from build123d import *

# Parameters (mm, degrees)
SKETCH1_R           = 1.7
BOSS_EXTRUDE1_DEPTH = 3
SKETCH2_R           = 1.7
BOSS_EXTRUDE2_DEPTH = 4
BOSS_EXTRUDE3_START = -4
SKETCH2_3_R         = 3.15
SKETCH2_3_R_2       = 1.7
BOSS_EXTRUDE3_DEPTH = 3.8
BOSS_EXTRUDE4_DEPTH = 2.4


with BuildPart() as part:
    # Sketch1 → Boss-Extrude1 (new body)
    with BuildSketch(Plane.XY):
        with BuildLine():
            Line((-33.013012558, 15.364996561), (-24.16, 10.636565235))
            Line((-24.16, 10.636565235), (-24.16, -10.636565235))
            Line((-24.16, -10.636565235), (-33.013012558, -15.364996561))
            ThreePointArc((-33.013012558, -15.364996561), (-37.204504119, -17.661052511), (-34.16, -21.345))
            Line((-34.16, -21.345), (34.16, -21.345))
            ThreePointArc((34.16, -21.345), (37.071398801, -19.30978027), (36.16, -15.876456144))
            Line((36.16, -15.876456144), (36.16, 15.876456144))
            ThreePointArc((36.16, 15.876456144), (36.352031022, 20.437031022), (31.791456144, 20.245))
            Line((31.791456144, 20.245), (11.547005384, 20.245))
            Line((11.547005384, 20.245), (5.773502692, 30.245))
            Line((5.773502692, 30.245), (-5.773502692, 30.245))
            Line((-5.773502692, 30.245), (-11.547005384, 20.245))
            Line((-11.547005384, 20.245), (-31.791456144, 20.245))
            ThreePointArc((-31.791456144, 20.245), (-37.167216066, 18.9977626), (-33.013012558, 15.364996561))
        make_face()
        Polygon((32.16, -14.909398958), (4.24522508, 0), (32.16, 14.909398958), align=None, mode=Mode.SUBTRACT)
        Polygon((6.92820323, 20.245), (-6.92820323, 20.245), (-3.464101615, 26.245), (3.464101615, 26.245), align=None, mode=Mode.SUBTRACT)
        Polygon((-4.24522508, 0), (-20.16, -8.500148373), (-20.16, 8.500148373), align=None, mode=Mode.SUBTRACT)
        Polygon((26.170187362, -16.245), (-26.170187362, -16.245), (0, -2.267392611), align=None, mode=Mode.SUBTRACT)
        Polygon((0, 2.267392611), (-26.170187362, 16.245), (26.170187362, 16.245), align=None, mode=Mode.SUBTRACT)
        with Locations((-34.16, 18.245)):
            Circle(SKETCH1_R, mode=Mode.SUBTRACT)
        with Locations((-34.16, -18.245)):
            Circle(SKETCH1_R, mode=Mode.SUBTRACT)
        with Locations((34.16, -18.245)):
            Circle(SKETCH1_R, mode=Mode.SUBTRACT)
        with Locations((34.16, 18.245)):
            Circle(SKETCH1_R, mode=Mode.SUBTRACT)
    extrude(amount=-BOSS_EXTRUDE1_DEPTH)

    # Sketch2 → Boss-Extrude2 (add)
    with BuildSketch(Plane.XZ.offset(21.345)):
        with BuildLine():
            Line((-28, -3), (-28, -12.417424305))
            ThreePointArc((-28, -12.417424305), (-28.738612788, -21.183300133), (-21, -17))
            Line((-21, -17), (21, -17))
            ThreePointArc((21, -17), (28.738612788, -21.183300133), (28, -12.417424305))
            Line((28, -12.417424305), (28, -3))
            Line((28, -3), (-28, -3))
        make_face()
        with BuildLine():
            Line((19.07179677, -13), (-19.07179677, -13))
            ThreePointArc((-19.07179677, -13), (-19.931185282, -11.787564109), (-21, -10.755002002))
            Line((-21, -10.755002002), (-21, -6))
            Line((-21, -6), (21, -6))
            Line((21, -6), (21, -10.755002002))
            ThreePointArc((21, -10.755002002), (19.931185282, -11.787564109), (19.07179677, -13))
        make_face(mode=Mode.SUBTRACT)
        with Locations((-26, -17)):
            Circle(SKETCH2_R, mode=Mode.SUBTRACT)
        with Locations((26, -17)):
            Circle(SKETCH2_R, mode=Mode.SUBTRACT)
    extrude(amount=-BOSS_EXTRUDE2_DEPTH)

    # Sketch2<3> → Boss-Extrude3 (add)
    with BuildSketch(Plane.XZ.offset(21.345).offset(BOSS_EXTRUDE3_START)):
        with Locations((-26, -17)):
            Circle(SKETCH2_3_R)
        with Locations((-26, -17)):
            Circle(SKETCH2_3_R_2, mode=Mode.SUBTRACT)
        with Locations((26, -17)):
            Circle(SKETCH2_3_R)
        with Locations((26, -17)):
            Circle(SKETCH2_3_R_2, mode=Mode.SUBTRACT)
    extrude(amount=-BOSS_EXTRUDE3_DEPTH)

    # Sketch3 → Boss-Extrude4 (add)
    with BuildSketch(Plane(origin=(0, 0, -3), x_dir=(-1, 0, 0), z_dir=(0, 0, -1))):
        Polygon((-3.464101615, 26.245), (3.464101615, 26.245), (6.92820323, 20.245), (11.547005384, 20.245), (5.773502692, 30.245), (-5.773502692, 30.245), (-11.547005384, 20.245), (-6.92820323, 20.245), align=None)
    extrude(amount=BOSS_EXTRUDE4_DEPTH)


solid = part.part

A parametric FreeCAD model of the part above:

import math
import FreeCAD as App
import Part
import Sketcher
from FreeCAD import Vector
Q = App.Units.Quantity

doc = App.newDocument("Part")
body = doc.addObject("PartDesign::Body", "Body")

# Sketch on XY plane
sketch1 = doc.addObject("Sketcher::SketchObject", "Sketch")
body.addObject(sketch1)
sketch1.AttachmentSupport = (doc.XY_Plane, [""])
sketch1.MapMode = "FlatFace"
sketch1.addGeometry(Part.LineSegment(Vector(-33, 15.4, 0), Vector(-24.2, 10.6, 0)), False)
sketch1.addGeometry(Part.LineSegment(Vector(-24.2, 10.6, 0), Vector(-24.2, -10.6, 0)), False)
sketch1.addGeometry(Part.LineSegment(Vector(-24.2, -10.6, 0), Vector(-33, -15.4, 0)), False)
sketch1.addGeometry(Part.ArcOfCircle(Part.Circle(Vector(-34.2, -18.2, 0), Vector(0, 0, 1), 3.1), math.radians(68), math.radians(270)), False)
sketch1.addGeometry(Part.LineSegment(Vector(-34.2, -21.3, 0), Vector(34.2, -21.3, 0)), False)
sketch1.addGeometry(Part.ArcOfCircle(Part.Circle(Vector(34.2, -18.2, 0), Vector(0, 0, 1), 3.1), math.radians(-90), math.radians(50)), False)
sketch1.addGeometry(Part.LineSegment(Vector(36.2, -15.9, 0), Vector(36.2, 15.9, 0)), False)
sketch1.addGeometry(Part.ArcOfCircle(Part.Circle(Vector(34.2, 18.2, 0), Vector(0, 0, 1), 3.1), math.radians(-50), math.radians(140)), False)
sketch1.addGeometry(Part.LineSegment(Vector(31.8, 20.2, 0), Vector(11.5, 20.2, 0)), False)
sketch1.addGeometry(Part.LineSegment(Vector(11.5, 20.2, 0), Vector(5.8, 30.2, 0)), False)
sketch1.addGeometry(Part.LineSegment(Vector(5.8, 30.2, 0), Vector(-5.8, 30.2, 0)), False)
sketch1.addGeometry(Part.LineSegment(Vector(-5.8, 30.2, 0), Vector(-11.5, 20.2, 0)), False)
sketch1.addGeometry(Part.LineSegment(Vector(-11.5, 20.2, 0), Vector(-31.8, 20.2, 0)), False)
sketch1.addGeometry(Part.ArcOfCircle(Part.Circle(Vector(-34.2, 18.2, 0), Vector(0, 0, 1), 3.1), math.radians(40), math.radians(292)), False)
sketch1.addGeometry(Part.Circle(Vector(-34.2, -18.2, 0), Vector(0, 0, 1), 1.7), False)
sketch1.addGeometry(Part.LineSegment(Vector(-20.2, 8.5, 0), Vector(-4.2, 0, 0)), False)
sketch1.addGeometry(Part.LineSegment(Vector(-4.2, 0, 0), Vector(-20.2, -8.5, 0)), False)
sketch1.addGeometry(Part.LineSegment(Vector(-20.2, -8.5, 0), Vector(-20.2, 8.5, 0)), False)
sketch1.addGeometry(Part.LineSegment(Vector(0, -2.3, 0), Vector(26.2, -16.2, 0)), False)
sketch1.addGeometry(Part.LineSegment(Vector(26.2, -16.2, 0), Vector(-26.2, -16.2, 0)), False)
sketch1.addGeometry(Part.LineSegment(Vector(-26.2, -16.2, 0), Vector(0, -2.3, 0)), False)
sketch1.addGeometry(Part.Circle(Vector(34.2, -18.2, 0), Vector(0, 0, 1), 1.7), False)
sketch1.addGeometry(Part.LineSegment(Vector(32.2, 14.9, 0), Vector(32.2, -14.9, 0)), False)
sketch1.addGeometry(Part.LineSegment(Vector(32.2, -14.9, 0), Vector(4.2, 0, 0)), False)
sketch1.addGeometry(Part.LineSegment(Vector(4.2, 0, 0), Vector(32.2, 14.9, 0)), False)
sketch1.addGeometry(Part.Circle(Vector(-34.2, 18.2, 0), Vector(0, 0, 1), 1.7), False)
sketch1.addGeometry(Part.LineSegment(Vector(26.2, 16.2, 0), Vector(0, 2.3, 0)), False)
sketch1.addGeometry(Part.LineSegment(Vector(0, 2.3, 0), Vector(-26.2, 16.2, 0)), False)
sketch1.addGeometry(Part.LineSegment(Vector(-26.2, 16.2, 0), Vector(26.2, 16.2, 0)), False)
sketch1.addGeometry(Part.LineSegment(Vector(3.5, 26.2, 0), Vector(6.9, 20.2, 0)), False)
sketch1.addGeometry(Part.LineSegment(Vector(6.9, 20.2, 0), Vector(-6.9, 20.2, 0)), False)
sketch1.addGeometry(Part.LineSegment(Vector(-6.9, 20.2, 0), Vector(-3.5, 26.2, 0)), False)
sketch1.addGeometry(Part.LineSegment(Vector(-3.5, 26.2, 0), Vector(3.5, 26.2, 0)), False)
sketch1.addGeometry(Part.Circle(Vector(34.2, 18.2, 0), Vector(0, 0, 1), 1.7), False)
sketch1.addConstraint(Sketcher.Constraint("Coincident", 0, 2, 1, 1))
sketch1.addConstraint(Sketcher.Constraint("Coincident", 1, 2, 2, 1))
sketch1.addConstraint(Sketcher.Constraint("Coincident", 2, 2, 3, 1))
sketch1.addConstraint(Sketcher.Constraint("Tangent", 3, 2, 4, 1))
sketch1.addConstraint(Sketcher.Constraint("Tangent", 4, 2, 5, 1))
sketch1.addConstraint(Sketcher.Constraint("Coincident", 5, 2, 6, 1))
sketch1.addConstraint(Sketcher.Constraint("Coincident", 6, 2, 7, 1))
sketch1.addConstraint(Sketcher.Constraint("Coincident", 7, 2, 8, 1))
sketch1.addConstraint(Sketcher.Constraint("Coincident", 8, 2, 9, 1))
sketch1.addConstraint(Sketcher.Constraint("Coincident", 9, 2, 10, 1))
sketch1.addConstraint(Sketcher.Constraint("Coincident", 10, 2, 11, 1))
sketch1.addConstraint(Sketcher.Constraint("Coincident", 11, 2, 12, 1))
sketch1.addConstraint(Sketcher.Constraint("Coincident", 12, 2, 13, 1))
sketch1.addConstraint(Sketcher.Constraint("Coincident", 13, 2, 0, 1))
sketch1.addConstraint(Sketcher.Constraint("Coincident", 15, 2, 16, 1))
sketch1.addConstraint(Sketcher.Constraint("Coincident", 16, 2, 17, 1))
sketch1.addConstraint(Sketcher.Constraint("Coincident", 17, 2, 15, 1))
sketch1.addConstraint(Sketcher.Constraint("Coincident", 18, 2, 19, 1))
sketch1.addConstraint(Sketcher.Constraint("Coincident", 19, 2, 20, 1))
sketch1.addConstraint(Sketcher.Constraint("Coincident", 20, 2, 18, 1))
sketch1.addConstraint(Sketcher.Constraint("Coincident", 22, 2, 23, 1))
sketch1.addConstraint(Sketcher.Constraint("Coincident", 23, 2, 24, 1))
sketch1.addConstraint(Sketcher.Constraint("Coincident", 24, 2, 22, 1))
sketch1.addConstraint(Sketcher.Constraint("Coincident", 26, 2, 27, 1))
sketch1.addConstraint(Sketcher.Constraint("Coincident", 27, 2, 28, 1))
sketch1.addConstraint(Sketcher.Constraint("Coincident", 28, 2, 26, 1))
sketch1.addConstraint(Sketcher.Constraint("Coincident", 29, 2, 30, 1))
sketch1.addConstraint(Sketcher.Constraint("Coincident", 30, 2, 31, 1))
sketch1.addConstraint(Sketcher.Constraint("Coincident", 31, 2, 32, 1))
sketch1.addConstraint(Sketcher.Constraint("Coincident", 32, 2, 29, 1))
sketch1.addConstraint(Sketcher.Constraint("Vertical", 1))
sketch1.addConstraint(Sketcher.Constraint("Horizontal", 4))
sketch1.addConstraint(Sketcher.Constraint("Vertical", 6))
sketch1.addConstraint(Sketcher.Constraint("Horizontal", 8))
sketch1.addConstraint(Sketcher.Constraint("Horizontal", 10))
sketch1.addConstraint(Sketcher.Constraint("Horizontal", 12))
sketch1.addConstraint(Sketcher.Constraint("Vertical", 17))
sketch1.addConstraint(Sketcher.Constraint("Horizontal", 19))
sketch1.addConstraint(Sketcher.Constraint("Vertical", 22))
sketch1.addConstraint(Sketcher.Constraint("Horizontal", 28))
sketch1.addConstraint(Sketcher.Constraint("Horizontal", 30))
sketch1.addConstraint(Sketcher.Constraint("Horizontal", 32))
sketch1.addConstraint(Sketcher.Constraint("Coincident", 14, 3, 3, 3))
sketch1.addConstraint(Sketcher.Constraint("Coincident", 21, 3, 5, 3))
sketch1.addConstraint(Sketcher.Constraint("Coincident", 25, 3, 13, 3))
sketch1.addConstraint(Sketcher.Constraint("Coincident", 33, 3, 7, 3))
sketch1.addConstraint(Sketcher.Constraint("Equal", 3, 5))
sketch1.addConstraint(Sketcher.Constraint("Equal", 5, 7))
sketch1.addConstraint(Sketcher.Constraint("Equal", 7, 13))
sketch1.addConstraint(Sketcher.Constraint("Equal", 14, 21))
sketch1.addConstraint(Sketcher.Constraint("Equal", 21, 25))
sketch1.addConstraint(Sketcher.Constraint("Equal", 25, 33))
sketch1.addConstraint(Sketcher.Constraint("Symmetric", 3, 3, 7, 3, -1, 1))
sketch1.addConstraint(Sketcher.Constraint("Symmetric", 5, 3, 13, 3, -1, 1))
sketch1.addConstraint(Sketcher.Constraint("Symmetric", 15, 2, 23, 2, -1, 1))
sketch1.addConstraint(Sketcher.Constraint("Symmetric", 20, 2, 26, 2, -1, 1))
sketch1.addConstraint(Sketcher.Constraint("Symmetric", 18, 2, 27, 2, -1, 1))
sketch1.addConstraint(Sketcher.Constraint("Symmetric", 8, 2, 11, 2, -2))
sketch1.addConstraint(Sketcher.Constraint("Symmetric", 2, 2, 13, 2, -1))
sketch1.addConstraint(Sketcher.Constraint("PointOnObject", 15, 2, -1))
sketch1.addConstraint(Sketcher.Constraint("PointOnObject", 20, 2, -2))
sketch1.addConstraint(Sketcher.Constraint("Parallel", 0, 15))
sketch1.addConstraint(Sketcher.Constraint("Parallel", 2, 16))
sketch1.addConstraint(Sketcher.Constraint("Parallel", 15, 18))
sketch1.addConstraint(Sketcher.Constraint("Parallel", 16, 20))
sketch1.addConstraint(Sketcher.Constraint("Parallel", 18, 23))
sketch1.addConstraint(Sketcher.Constraint("Parallel", 20, 24))
sketch1.addConstraint(Sketcher.Constraint("Parallel", 24, 26))
sketch1.addConstraint(Sketcher.Constraint("Parallel", 9, 29))
sketch1.addConstraint(Sketcher.Constraint("Parallel", 11, 31))
sketch1.addConstraint(Sketcher.Constraint("Horizontal", 12, 2, 29, 2))
sketch1.addConstraint(Sketcher.Constraint("Vertical", 19, 2, 27, 2))
sketch1.addConstraint(Sketcher.Constraint("Equal", 9, 11))
sketch1.addConstraint(Sketcher.Constraint("Diameter", 14, 3.4))
sketch1.addConstraint(Sketcher.Constraint("Radius", 3, 3.1))
sketch1.addConstraint(Sketcher.Constraint("Angle", 9, Q("120 deg")))
sketch1.addConstraint(Sketcher.Constraint("DistanceX", 13, 3, 0, 2, 10.0))
sketch1.addConstraint(Sketcher.Constraint("DistanceX", 5, 3, 5, 2, 2.0))
sketch1.addConstraint(Sketcher.Constraint("DistanceY", 33, 3, 7, 2, 2.0))
sketch1.addConstraint(Sketcher.Constraint("DistanceY", 8, 2, 9, 2, 10.0))
sketch1.addConstraint(Sketcher.Constraint("DistanceX", 1, 2, 16, 2, 4.0))
sketch1.addConstraint(Sketcher.Constraint("DistanceY", 21, 3, 18, 2, 2.0))
sketch1.addConstraint(Sketcher.Constraint("DistanceX", 22, 2, 21, 3, 2.0))
sketch1.addConstraint(Sketcher.Constraint("DistanceY", 31, 2, 10, 2, 4.0))
sketch1.addConstraint(Sketcher.Constraint("DistanceX", 4, 1, 4, 2, 68.32))
sketch1.addConstraint(Sketcher.Constraint("DistanceY", 5, 3, 7, 3, 36.49))
sketch1.addConstraint(Sketcher.Constraint("DistanceX", 8, 2, 8, 1, 20.244451))
sketch1.addConstraint(Sketcher.Constraint("DistanceY", 1, 2, 1, 1, 21.27313))
sketch1.addConstraint(Sketcher.Constraint("DistanceY", 22, 2, -1, 1, 14.909399))
sketch1.addConstraint(Sketcher.Constraint("DistanceX", 31, 2, -1, 1, 3.464102))
sketch1.addConstraint(Sketcher.Constraint("DistanceX", -1, 1, 32, 2, 3.464102))
sketch1.addConstraint(Sketcher.Constraint("Distance", 15, 18.042522))
sketch1.addConstraint(Sketcher.Constraint("DistanceX", 19, 2, 19, 1, 52.340375))
pad1 = doc.addObject("PartDesign::Pad", "Pad")
body.addObject(pad1)
pad1.Profile = sketch1
pad1.Length = 3
pad1.Reversed = True

# Sketch on XZ plane
sketch2 = doc.addObject("Sketcher::SketchObject", "Sketch001")
body.addObject(sketch2)
sketch2.AttachmentSupport = (doc.XZ_Plane, [""])
sketch2.MapMode = "FlatFace"
sketch2.AttachmentOffset = App.Placement(Vector(0, 0, 21.345), App.Rotation())
sketch2.addGeometry(Part.LineSegment(Vector(-28, -3, 0), Vector(-28, -12.4, 0)), False)
sketch2.addGeometry(Part.ArcOfCircle(Part.Circle(Vector(-26, -17, 0), Vector(0, 0, 1), 5), math.radians(114), math.radians(360)), False)
sketch2.addGeometry(Part.LineSegment(Vector(-21, -17, 0), Vector(21, -17, 0)), False)
sketch2.addGeometry(Part.ArcOfCircle(Part.Circle(Vector(26, -17, 0), Vector(0, 0, 1), 5), math.radians(180), math.radians(426)), False)
sketch2.addGeometry(Part.LineSegment(Vector(28, -12.4, 0), Vector(28, -3, 0)), False)
sketch2.addGeometry(Part.LineSegment(Vector(28, -3, 0), Vector(-28, -3, 0)), False)
sketch2.addGeometry(Part.Circle(Vector(-26, -17, 0), Vector(0, 0, 1), 1.7), False)
sketch2.addGeometry(Part.Circle(Vector(26, -17, 0), Vector(0, 0, 1), 1.7), False)
sketch2.addGeometry(Part.ArcOfCircle(Part.Circle(Vector(26, -17, 0), Vector(0, 0, 1), 8), math.radians(129), math.radians(150)), False)
sketch2.addGeometry(Part.LineSegment(Vector(19.1, -13, 0), Vector(-19.1, -13, 0)), False)
sketch2.addGeometry(Part.ArcOfCircle(Part.Circle(Vector(-26, -17, 0), Vector(0, 0, 1), 8), math.radians(30), math.radians(51)), False)
sketch2.addGeometry(Part.LineSegment(Vector(-21, -10.8, 0), Vector(-21, -6, 0)), False)
sketch2.addGeometry(Part.LineSegment(Vector(-21, -6, 0), Vector(21, -6, 0)), False)
sketch2.addGeometry(Part.LineSegment(Vector(21, -6, 0), Vector(21, -10.8, 0)), False)
sketch2.addConstraint(Sketcher.Constraint("Coincident", 0, 2, 1, 1))
sketch2.addConstraint(Sketcher.Constraint("Coincident", 1, 2, 2, 1))
sketch2.addConstraint(Sketcher.Constraint("Coincident", 2, 2, 3, 1))
sketch2.addConstraint(Sketcher.Constraint("Coincident", 3, 2, 4, 1))
sketch2.addConstraint(Sketcher.Constraint("Coincident", 4, 2, 5, 1))
sketch2.addConstraint(Sketcher.Constraint("Coincident", 5, 2, 0, 1))
sketch2.addConstraint(Sketcher.Constraint("Coincident", 8, 2, 9, 1))
sketch2.addConstraint(Sketcher.Constraint("Coincident", 9, 2, 10, 1))
sketch2.addConstraint(Sketcher.Constraint("Coincident", 10, 2, 11, 1))
sketch2.addConstraint(Sketcher.Constraint("Coincident", 11, 2, 12, 1))
sketch2.addConstraint(Sketcher.Constraint("Coincident", 12, 2, 13, 1))
sketch2.addConstraint(Sketcher.Constraint("Coincident", 13, 2, 8, 1))
sketch2.addConstraint(Sketcher.Constraint("Vertical", 0))
sketch2.addConstraint(Sketcher.Constraint("Horizontal", 2))
sketch2.addConstraint(Sketcher.Constraint("Vertical", 4))
sketch2.addConstraint(Sketcher.Constraint("Horizontal", 5))
sketch2.addConstraint(Sketcher.Constraint("Horizontal", 9))
sketch2.addConstraint(Sketcher.Constraint("Vertical", 11))
sketch2.addConstraint(Sketcher.Constraint("Horizontal", 12))
sketch2.addConstraint(Sketcher.Constraint("Vertical", 13))
sketch2.addConstraint(Sketcher.Constraint("Coincident", 6, 3, 1, 3))
sketch2.addConstraint(Sketcher.Constraint("Coincident", 7, 3, 3, 3))
sketch2.addConstraint(Sketcher.Constraint("Coincident", 8, 3, 3, 3))
sketch2.addConstraint(Sketcher.Constraint("Coincident", 10, 3, 1, 3))
sketch2.addConstraint(Sketcher.Constraint("Equal", 1, 3))
sketch2.addConstraint(Sketcher.Constraint("Equal", 6, 7))
sketch2.addConstraint(Sketcher.Constraint("Equal", 8, 10))
sketch2.addConstraint(Sketcher.Constraint("Symmetric", 1, 3, 3, 3, -2))
sketch2.addConstraint(Sketcher.Constraint("Horizontal", 10, 3, 1, 2))
sketch2.addConstraint(Sketcher.Constraint("Horizontal", 0, 2, 3, 2))
sketch2.addConstraint(Sketcher.Constraint("Horizontal", 10, 2, 13, 2))
sketch2.addConstraint(Sketcher.Constraint("Vertical", 1, 2, 10, 2))
sketch2.addConstraint(Sketcher.Constraint("Radius", 1, 5.0))
sketch2.addConstraint(Sketcher.Constraint("Radius", 8, 8.0))
sketch2.addConstraint(Sketcher.Constraint("Diameter", 6, 3.4))
sketch2.addConstraint(Sketcher.Constraint("DistanceX", 2, 1, 2, 2, 42.0))
sketch2.addConstraint(Sketcher.Constraint("DistanceX", 5, 2, 5, 1, 56.0))
sketch2.addConstraint(Sketcher.Constraint("DistanceY", 1, 3, -1, 1, 17.0))
sketch2.addConstraint(Sketcher.Constraint("DistanceY", 4, 2, -1, 1, 3.0))
sketch2.addConstraint(Sketcher.Constraint("DistanceY", 8, 2, -1, 1, 13.0))
sketch2.addConstraint(Sketcher.Constraint("DistanceY", 11, 2, -1, 1, 6.0))
pad2 = doc.addObject("PartDesign::Pad", "Pad001")
body.addObject(pad2)
pad2.Profile = sketch2
pad2.Length = 4
pad2.Reversed = True

# Sketch on XZ plane
sketch3 = doc.addObject("Sketcher::SketchObject", "Sketch002")
body.addObject(sketch3)
sketch3.AttachmentSupport = (doc.XZ_Plane, [""])
sketch3.MapMode = "FlatFace"
sketch3.AttachmentOffset = App.Placement(Vector(0, 0, 17.345), App.Rotation())
sketch3.addGeometry(Part.Circle(Vector(-26, -17, 0), Vector(0, 0, 1), 3.1), False)
sketch3.addGeometry(Part.Circle(Vector(-26, -17, 0), Vector(0, 0, 1), 1.7), False)
sketch3.addGeometry(Part.Circle(Vector(26, -17, 0), Vector(0, 0, 1), 3.1), False)
sketch3.addGeometry(Part.Circle(Vector(26, -17, 0), Vector(0, 0, 1), 1.7), False)
sketch3.addConstraint(Sketcher.Constraint("Coincident", 1, 3, 0, 3))
sketch3.addConstraint(Sketcher.Constraint("Coincident", 3, 3, 2, 3))
sketch3.addConstraint(Sketcher.Constraint("Equal", 0, 2))
sketch3.addConstraint(Sketcher.Constraint("Equal", 1, 3))
sketch3.addConstraint(Sketcher.Constraint("Symmetric", 0, 3, 2, 3, -2))
sketch3.addConstraint(Sketcher.Constraint("Diameter", 0, 6.3))
sketch3.addConstraint(Sketcher.Constraint("Diameter", 1, 3.4))
sketch3.addConstraint(Sketcher.Constraint("DistanceX", 0, 3, -1, 1, 26.0))
sketch3.addConstraint(Sketcher.Constraint("DistanceY", 0, 3, -1, 1, 17.0))
pad3 = doc.addObject("PartDesign::Pad", "Pad002")
body.addObject(pad3)
pad3.Profile = sketch3
pad3.Length = 3.8
pad3.Reversed = True

# Sketch on XY plane
sketch4 = doc.addObject("Sketcher::SketchObject", "Sketch003")
body.addObject(sketch4)
sketch4.AttachmentSupport = (doc.XY_Plane, [""])
sketch4.MapMode = "FlatFace"
sketch4.AttachmentOffset = App.Placement(Vector(0, 0, -3), App.Rotation())
sketch4.addGeometry(Part.LineSegment(Vector(3.5, 26.2, 0), Vector(-3.5, 26.2, 0)), False)
sketch4.addGeometry(Part.LineSegment(Vector(-3.5, 26.2, 0), Vector(-6.9, 20.2, 0)), False)
sketch4.addGeometry(Part.LineSegment(Vector(-6.9, 20.2, 0), Vector(-11.5, 20.2, 0)), False)
sketch4.addGeometry(Part.LineSegment(Vector(-11.5, 20.2, 0), Vector(-5.8, 30.2, 0)), False)
sketch4.addGeometry(Part.LineSegment(Vector(-5.8, 30.2, 0), Vector(5.8, 30.2, 0)), False)
sketch4.addGeometry(Part.LineSegment(Vector(5.8, 30.2, 0), Vector(11.5, 20.2, 0)), False)
sketch4.addGeometry(Part.LineSegment(Vector(11.5, 20.2, 0), Vector(6.9, 20.2, 0)), False)
sketch4.addGeometry(Part.LineSegment(Vector(6.9, 20.2, 0), Vector(3.5, 26.2, 0)), False)
sketch4.addConstraint(Sketcher.Constraint("Coincident", 0, 2, 1, 1))
sketch4.addConstraint(Sketcher.Constraint("Coincident", 1, 2, 2, 1))
sketch4.addConstraint(Sketcher.Constraint("Coincident", 2, 2, 3, 1))
sketch4.addConstraint(Sketcher.Constraint("Coincident", 3, 2, 4, 1))
sketch4.addConstraint(Sketcher.Constraint("Coincident", 4, 2, 5, 1))
sketch4.addConstraint(Sketcher.Constraint("Coincident", 5, 2, 6, 1))
sketch4.addConstraint(Sketcher.Constraint("Coincident", 6, 2, 7, 1))
sketch4.addConstraint(Sketcher.Constraint("Coincident", 7, 2, 0, 1))
sketch4.addConstraint(Sketcher.Constraint("Horizontal", 0))
sketch4.addConstraint(Sketcher.Constraint("Horizontal", 2))
sketch4.addConstraint(Sketcher.Constraint("Horizontal", 4))
sketch4.addConstraint(Sketcher.Constraint("Horizontal", 6))
sketch4.addConstraint(Sketcher.Constraint("Symmetric", 2, 2, 5, 2, -2))
sketch4.addConstraint(Sketcher.Constraint("Parallel", 1, 3))
sketch4.addConstraint(Sketcher.Constraint("Parallel", 5, 7))
sketch4.addConstraint(Sketcher.Constraint("Equal", 2, 6))
sketch4.addConstraint(Sketcher.Constraint("Equal", 3, 5))
sketch4.addConstraint(Sketcher.Constraint("Angle", 1, Q("-120 deg")))
sketch4.addConstraint(Sketcher.Constraint("DistanceY", 1, 2, 0, 2, 6.0))
sketch4.addConstraint(Sketcher.Constraint("DistanceY", 0, 2, 3, 2, 4.0))
sketch4.addConstraint(Sketcher.Constraint("DistanceY", -1, 1, 0, 2, 26.245))
sketch4.addConstraint(Sketcher.Constraint("DistanceX", 0, 2, -1, 1, 3.464102))
sketch4.addConstraint(Sketcher.Constraint("DistanceX", 3, 2, 0, 2, 2.309401))
pad4 = doc.addObject("PartDesign::Pad", "Pad003")
body.addObject(pad4)
pad4.Profile = sketch4
pad4.Length = 2.4
pad4.Reversed = True

doc.recompute()
